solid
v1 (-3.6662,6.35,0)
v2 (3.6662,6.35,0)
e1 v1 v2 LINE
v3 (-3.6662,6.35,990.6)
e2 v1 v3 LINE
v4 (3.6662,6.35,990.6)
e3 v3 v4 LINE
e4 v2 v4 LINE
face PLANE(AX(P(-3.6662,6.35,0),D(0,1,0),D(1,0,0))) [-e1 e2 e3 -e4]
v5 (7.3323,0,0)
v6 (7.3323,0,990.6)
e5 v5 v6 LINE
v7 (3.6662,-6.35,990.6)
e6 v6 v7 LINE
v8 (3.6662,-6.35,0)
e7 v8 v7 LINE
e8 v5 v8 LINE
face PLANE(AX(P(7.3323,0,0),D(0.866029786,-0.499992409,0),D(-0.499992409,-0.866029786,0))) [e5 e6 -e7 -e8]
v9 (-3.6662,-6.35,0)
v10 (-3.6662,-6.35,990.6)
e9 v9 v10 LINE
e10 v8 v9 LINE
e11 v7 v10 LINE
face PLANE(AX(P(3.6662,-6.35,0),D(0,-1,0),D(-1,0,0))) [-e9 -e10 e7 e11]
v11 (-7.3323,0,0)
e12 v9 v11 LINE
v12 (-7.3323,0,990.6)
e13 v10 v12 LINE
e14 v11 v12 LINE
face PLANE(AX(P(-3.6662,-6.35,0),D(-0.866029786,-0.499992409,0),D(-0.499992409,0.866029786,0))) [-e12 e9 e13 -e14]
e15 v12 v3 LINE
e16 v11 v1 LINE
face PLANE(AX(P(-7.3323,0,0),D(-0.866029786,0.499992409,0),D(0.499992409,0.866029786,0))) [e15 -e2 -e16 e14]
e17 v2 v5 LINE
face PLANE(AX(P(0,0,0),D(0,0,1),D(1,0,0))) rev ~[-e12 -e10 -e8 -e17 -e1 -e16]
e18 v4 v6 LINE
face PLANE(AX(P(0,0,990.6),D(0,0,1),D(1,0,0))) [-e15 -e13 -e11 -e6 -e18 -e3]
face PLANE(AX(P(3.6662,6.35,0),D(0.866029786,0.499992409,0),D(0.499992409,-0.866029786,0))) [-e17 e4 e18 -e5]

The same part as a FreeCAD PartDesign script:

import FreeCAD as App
import Part
import Sketcher
Q = App.Units.Quantity


def add_polygon(sketch, points):
    """Adds a closed chain of lines whose ends are joined by coincident constraints."""
    first, n = sketch.GeometryCount, len(points)
    for a, b in zip(points, points[1:] + points[:1]):
        sketch.addGeometry(Part.LineSegment(App.Vector(*a, 0), App.Vector(*b, 0)), False)
    for i in range(n):
        sketch.addConstraint(Sketcher.Constraint("Coincident", first + i, 2, first + (i + 1) % n, 1))

doc = App.newDocument("Part")
body = doc.addObject("PartDesign::Body", "Body")

# Sketch on XY plane
sketch1 = body.newObject("Sketcher::SketchObject", "Sketch")
sketch1.AttachmentSupport = (doc.getObject("XY_Plane"), [""])
sketch1.MapMode = "FlatFace"
add_polygon(sketch1, [(7, 0), (4, 6), (-4, 6), (-7, 0), (-4, -6), (4, -6)])  # lines 0-5
sketch1.addConstraint([
    Sketcher.Constraint("Horizontal", 1),
    Sketcher.Constraint("Horizontal", 4),
    Sketcher.Constraint("Symmetric", 0, 2, 3, 2, -1, 1),
    Sketcher.Constraint("Symmetric", 2, 2, 5, 2, -1, 1),
    Sketcher.Constraint("PointOnObject", 2, 2, -1),
    Sketcher.Constraint("Parallel", 2, 5),
    Sketcher.Constraint("Vertical", 1, 2, 3, 2),
    Sketcher.Constraint("DistanceY", 3, 2, 1, 2, Q("0.5 in")),
    Sketcher.Constraint("Angle", 0, Q("119.9995 deg")),
    Sketcher.Constraint("DistanceX", 2, 2, 0, 2, Q("0.433 in")),
])
pad1 = body.newObject("PartDesign::Pad", "Pad")
pad1.Profile = sketch1
pad1.Length = Q("39 in")

doc.recompute()
